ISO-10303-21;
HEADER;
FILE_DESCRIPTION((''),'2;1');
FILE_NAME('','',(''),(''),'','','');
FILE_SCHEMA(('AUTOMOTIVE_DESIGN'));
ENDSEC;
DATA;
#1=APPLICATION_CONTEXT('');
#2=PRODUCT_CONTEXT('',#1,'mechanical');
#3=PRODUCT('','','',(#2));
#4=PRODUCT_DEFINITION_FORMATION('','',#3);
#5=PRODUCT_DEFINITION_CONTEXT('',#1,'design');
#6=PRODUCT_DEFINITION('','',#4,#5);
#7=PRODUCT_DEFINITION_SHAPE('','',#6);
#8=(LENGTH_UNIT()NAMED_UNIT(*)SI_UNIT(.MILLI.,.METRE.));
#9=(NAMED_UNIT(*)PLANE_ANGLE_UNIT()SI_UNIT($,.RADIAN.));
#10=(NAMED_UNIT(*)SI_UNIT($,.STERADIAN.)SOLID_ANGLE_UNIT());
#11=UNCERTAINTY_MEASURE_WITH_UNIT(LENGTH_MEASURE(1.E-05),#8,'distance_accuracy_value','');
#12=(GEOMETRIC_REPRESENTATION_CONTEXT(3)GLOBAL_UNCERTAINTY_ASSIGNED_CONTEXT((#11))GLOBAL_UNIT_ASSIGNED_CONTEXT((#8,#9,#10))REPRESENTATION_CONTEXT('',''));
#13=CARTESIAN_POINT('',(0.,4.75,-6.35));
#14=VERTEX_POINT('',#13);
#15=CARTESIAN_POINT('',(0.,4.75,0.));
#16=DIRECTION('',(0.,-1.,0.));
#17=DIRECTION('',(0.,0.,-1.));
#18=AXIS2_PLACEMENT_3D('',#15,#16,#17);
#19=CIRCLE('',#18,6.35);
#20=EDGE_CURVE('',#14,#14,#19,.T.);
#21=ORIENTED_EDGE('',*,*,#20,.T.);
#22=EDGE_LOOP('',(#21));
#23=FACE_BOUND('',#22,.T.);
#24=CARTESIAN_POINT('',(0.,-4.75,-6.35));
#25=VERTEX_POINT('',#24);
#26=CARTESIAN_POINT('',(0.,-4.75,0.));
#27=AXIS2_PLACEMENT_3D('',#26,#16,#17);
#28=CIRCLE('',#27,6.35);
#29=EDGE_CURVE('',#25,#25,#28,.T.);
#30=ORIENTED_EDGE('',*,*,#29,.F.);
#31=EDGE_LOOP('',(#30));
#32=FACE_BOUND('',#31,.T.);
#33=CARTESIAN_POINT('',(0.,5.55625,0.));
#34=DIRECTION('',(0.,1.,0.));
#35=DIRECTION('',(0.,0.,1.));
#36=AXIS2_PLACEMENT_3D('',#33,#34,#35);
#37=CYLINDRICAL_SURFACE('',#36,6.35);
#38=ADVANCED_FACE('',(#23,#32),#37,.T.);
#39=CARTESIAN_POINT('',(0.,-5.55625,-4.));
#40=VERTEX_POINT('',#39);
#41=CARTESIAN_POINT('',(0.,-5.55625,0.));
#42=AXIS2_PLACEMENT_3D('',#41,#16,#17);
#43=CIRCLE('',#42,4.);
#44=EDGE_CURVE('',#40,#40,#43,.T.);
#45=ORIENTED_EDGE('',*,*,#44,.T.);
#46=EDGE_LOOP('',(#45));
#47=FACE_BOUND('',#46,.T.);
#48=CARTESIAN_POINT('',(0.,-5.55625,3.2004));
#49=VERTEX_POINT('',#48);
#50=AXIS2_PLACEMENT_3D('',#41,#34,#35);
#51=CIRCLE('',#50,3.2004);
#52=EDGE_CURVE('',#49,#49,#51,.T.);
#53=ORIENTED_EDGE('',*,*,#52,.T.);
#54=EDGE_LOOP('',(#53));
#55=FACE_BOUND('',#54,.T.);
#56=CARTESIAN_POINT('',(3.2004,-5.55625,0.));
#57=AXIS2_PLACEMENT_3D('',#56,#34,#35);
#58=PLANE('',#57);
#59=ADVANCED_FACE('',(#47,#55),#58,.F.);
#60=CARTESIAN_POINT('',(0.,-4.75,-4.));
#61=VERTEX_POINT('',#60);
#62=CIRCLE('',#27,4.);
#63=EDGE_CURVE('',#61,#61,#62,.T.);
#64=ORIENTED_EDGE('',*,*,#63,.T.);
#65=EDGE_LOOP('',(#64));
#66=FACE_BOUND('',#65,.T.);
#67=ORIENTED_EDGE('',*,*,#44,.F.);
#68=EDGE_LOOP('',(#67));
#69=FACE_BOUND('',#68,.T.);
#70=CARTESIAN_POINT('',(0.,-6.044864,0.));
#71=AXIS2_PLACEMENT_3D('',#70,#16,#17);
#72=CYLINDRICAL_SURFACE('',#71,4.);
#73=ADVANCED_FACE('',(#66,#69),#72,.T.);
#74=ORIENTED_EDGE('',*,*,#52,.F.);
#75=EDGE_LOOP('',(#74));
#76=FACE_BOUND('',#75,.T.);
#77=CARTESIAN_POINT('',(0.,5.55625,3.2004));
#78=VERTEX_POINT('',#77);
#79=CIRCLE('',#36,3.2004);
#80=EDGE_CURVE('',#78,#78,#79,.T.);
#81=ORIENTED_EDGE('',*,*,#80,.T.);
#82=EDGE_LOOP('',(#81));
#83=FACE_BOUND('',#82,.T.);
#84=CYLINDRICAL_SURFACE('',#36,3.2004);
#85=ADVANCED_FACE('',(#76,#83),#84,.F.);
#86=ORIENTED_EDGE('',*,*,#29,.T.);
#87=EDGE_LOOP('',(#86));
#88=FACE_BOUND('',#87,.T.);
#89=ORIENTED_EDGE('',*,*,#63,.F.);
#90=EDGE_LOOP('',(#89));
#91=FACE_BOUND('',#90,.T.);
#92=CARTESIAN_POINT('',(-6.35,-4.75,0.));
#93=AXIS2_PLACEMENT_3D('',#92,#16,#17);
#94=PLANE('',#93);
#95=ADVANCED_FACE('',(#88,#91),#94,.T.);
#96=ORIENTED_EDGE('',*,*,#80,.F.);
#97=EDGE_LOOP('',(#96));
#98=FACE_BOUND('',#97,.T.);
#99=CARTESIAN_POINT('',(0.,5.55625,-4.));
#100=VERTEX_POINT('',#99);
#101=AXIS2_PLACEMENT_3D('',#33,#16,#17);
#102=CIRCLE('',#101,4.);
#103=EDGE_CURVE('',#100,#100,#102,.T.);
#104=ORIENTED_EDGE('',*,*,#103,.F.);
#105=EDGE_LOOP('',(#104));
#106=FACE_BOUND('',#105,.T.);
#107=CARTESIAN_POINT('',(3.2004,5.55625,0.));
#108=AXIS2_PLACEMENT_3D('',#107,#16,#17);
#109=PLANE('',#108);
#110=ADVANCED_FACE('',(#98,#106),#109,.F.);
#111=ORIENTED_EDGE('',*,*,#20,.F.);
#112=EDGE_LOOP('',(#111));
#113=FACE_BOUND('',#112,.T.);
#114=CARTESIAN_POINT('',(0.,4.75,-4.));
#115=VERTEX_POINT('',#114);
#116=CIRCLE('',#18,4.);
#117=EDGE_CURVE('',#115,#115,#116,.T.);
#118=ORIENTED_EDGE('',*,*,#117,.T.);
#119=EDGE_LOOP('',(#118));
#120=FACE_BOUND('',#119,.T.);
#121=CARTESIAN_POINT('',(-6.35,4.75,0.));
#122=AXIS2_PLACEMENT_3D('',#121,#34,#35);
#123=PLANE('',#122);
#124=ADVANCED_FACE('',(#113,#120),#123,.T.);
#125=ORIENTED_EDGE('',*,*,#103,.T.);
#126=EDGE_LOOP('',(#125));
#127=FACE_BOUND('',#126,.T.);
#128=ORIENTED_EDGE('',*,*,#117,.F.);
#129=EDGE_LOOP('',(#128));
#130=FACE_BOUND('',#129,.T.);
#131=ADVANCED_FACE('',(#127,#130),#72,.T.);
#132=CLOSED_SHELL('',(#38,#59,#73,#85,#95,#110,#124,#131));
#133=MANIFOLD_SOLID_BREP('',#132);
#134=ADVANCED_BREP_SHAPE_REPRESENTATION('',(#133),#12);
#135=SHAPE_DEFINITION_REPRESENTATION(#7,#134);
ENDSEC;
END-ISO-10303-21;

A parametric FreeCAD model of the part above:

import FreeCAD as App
import Part
import Sketcher

V = App.Vector
Q = App.Units.Quantity


def add_polygon(sketch, points):
    """Adds a closed chain of lines whose ends are joined by coincident constraints."""
    first, n = sketch.GeometryCount, len(points)
    for a, b in zip(points, points[1:] + points[:1]):
        sketch.addGeometry(Part.LineSegment(App.Vector(*a, 0), App.Vector(*b, 0)), False)
    for i in range(n):
        sketch.addConstraint(Sketcher.Constraint("Coincident", first + i, 2, first + (i + 1) % n, 1))

doc = App.newDocument("Part")
body = doc.addObject("PartDesign::Body", "Body")

# Sketch on XY plane
sketch1 = body.newObject("Sketcher::SketchObject", "Sketch")
sketch1.AttachmentSupport = (doc.getObject("XY_Plane"), [""])
sketch1.MapMode = "FlatFace"
add_polygon(sketch1, [(3.2, 5.6), (3.2, -5.6), (6.3, -5.6), (6.3, 5.6)])  # lines 0-3
sketch1.addConstraint([
    Sketcher.Constraint("Vertical", 0),
    Sketcher.Constraint("Horizontal", 1),
    Sketcher.Constraint("Vertical", 2),
    Sketcher.Constraint("Horizontal", 3),
    Sketcher.Constraint("DistanceX", 1, 1, 1, 2, Q("0.124 in")),
    Sketcher.Constraint("DistanceY", 0, 2, 0, 1, Q("0.4375 in")),
    Sketcher.Constraint("DistanceX", -1, 1, 1, 2, Q("0.25 in")),
    Sketcher.Constraint("DistanceY", 0, 2, -1, 1, Q("0.21875 in")),
])
revolution = body.newObject("PartDesign::Revolution", "Revolution")
revolution.Profile = sketch1
revolution.ReferenceAxis = (sketch1, ["V_Axis"])
revolution.Angle = 360

# Sketch on XY plane
sketch2 = body.newObject("Sketcher::SketchObject", "Sketch001")
sketch2.AttachmentSupport = (doc.getObject("XY_Plane"), [""])
sketch2.MapMode = "FlatFace"
add_polygon(sketch2, [(-6.3, 5.6), (-6.3, 4.8), (-4, 4.8), (-4, 5.6)])  # lines 0-3
add_polygon(sketch2, [(-6.3, -4.8), (-6.3, -5.6), (-4, -5.6), (-4, -4.8)])  # lines 4-7
sketch2.addConstraint([
    Sketcher.Constraint("Vertical", 0),
    Sketcher.Constraint("Horizontal", 1),
    Sketcher.Constraint("Vertical", 2),
    Sketcher.Constraint("Horizontal", 3),
    Sketcher.Constraint("Vertical", 4),
    Sketcher.Constraint("Horizontal", 5),
    Sketcher.Constraint("Vertical", 6),
    Sketcher.Constraint("Horizontal", 7),
    Sketcher.Constraint("Symmetric", 3, 2, 4, 2, -1),
    Sketcher.Constraint("Symmetric", 1, 2, 6, 2, -1),
    Sketcher.Constraint("DistanceX", 0, 2, -1, 1, Q("0.25 in")),
    Sketcher.Constraint("DistanceY", -1, 1, 2, 2, Q("0.21875 in")),
    Sketcher.Constraint("DistanceX", 1, 1, 1, 2, Q("2.35 mm")),
    Sketcher.Constraint("DistanceY", 0, 2, 0, 1, Q("0.80625 mm")),
])
groove = body.newObject("PartDesign::Groove", "Groove")
groove.Profile = sketch2
groove.ReferenceAxis = (sketch2, ["V_Axis"])
groove.Angle = 360

doc.recompute()
